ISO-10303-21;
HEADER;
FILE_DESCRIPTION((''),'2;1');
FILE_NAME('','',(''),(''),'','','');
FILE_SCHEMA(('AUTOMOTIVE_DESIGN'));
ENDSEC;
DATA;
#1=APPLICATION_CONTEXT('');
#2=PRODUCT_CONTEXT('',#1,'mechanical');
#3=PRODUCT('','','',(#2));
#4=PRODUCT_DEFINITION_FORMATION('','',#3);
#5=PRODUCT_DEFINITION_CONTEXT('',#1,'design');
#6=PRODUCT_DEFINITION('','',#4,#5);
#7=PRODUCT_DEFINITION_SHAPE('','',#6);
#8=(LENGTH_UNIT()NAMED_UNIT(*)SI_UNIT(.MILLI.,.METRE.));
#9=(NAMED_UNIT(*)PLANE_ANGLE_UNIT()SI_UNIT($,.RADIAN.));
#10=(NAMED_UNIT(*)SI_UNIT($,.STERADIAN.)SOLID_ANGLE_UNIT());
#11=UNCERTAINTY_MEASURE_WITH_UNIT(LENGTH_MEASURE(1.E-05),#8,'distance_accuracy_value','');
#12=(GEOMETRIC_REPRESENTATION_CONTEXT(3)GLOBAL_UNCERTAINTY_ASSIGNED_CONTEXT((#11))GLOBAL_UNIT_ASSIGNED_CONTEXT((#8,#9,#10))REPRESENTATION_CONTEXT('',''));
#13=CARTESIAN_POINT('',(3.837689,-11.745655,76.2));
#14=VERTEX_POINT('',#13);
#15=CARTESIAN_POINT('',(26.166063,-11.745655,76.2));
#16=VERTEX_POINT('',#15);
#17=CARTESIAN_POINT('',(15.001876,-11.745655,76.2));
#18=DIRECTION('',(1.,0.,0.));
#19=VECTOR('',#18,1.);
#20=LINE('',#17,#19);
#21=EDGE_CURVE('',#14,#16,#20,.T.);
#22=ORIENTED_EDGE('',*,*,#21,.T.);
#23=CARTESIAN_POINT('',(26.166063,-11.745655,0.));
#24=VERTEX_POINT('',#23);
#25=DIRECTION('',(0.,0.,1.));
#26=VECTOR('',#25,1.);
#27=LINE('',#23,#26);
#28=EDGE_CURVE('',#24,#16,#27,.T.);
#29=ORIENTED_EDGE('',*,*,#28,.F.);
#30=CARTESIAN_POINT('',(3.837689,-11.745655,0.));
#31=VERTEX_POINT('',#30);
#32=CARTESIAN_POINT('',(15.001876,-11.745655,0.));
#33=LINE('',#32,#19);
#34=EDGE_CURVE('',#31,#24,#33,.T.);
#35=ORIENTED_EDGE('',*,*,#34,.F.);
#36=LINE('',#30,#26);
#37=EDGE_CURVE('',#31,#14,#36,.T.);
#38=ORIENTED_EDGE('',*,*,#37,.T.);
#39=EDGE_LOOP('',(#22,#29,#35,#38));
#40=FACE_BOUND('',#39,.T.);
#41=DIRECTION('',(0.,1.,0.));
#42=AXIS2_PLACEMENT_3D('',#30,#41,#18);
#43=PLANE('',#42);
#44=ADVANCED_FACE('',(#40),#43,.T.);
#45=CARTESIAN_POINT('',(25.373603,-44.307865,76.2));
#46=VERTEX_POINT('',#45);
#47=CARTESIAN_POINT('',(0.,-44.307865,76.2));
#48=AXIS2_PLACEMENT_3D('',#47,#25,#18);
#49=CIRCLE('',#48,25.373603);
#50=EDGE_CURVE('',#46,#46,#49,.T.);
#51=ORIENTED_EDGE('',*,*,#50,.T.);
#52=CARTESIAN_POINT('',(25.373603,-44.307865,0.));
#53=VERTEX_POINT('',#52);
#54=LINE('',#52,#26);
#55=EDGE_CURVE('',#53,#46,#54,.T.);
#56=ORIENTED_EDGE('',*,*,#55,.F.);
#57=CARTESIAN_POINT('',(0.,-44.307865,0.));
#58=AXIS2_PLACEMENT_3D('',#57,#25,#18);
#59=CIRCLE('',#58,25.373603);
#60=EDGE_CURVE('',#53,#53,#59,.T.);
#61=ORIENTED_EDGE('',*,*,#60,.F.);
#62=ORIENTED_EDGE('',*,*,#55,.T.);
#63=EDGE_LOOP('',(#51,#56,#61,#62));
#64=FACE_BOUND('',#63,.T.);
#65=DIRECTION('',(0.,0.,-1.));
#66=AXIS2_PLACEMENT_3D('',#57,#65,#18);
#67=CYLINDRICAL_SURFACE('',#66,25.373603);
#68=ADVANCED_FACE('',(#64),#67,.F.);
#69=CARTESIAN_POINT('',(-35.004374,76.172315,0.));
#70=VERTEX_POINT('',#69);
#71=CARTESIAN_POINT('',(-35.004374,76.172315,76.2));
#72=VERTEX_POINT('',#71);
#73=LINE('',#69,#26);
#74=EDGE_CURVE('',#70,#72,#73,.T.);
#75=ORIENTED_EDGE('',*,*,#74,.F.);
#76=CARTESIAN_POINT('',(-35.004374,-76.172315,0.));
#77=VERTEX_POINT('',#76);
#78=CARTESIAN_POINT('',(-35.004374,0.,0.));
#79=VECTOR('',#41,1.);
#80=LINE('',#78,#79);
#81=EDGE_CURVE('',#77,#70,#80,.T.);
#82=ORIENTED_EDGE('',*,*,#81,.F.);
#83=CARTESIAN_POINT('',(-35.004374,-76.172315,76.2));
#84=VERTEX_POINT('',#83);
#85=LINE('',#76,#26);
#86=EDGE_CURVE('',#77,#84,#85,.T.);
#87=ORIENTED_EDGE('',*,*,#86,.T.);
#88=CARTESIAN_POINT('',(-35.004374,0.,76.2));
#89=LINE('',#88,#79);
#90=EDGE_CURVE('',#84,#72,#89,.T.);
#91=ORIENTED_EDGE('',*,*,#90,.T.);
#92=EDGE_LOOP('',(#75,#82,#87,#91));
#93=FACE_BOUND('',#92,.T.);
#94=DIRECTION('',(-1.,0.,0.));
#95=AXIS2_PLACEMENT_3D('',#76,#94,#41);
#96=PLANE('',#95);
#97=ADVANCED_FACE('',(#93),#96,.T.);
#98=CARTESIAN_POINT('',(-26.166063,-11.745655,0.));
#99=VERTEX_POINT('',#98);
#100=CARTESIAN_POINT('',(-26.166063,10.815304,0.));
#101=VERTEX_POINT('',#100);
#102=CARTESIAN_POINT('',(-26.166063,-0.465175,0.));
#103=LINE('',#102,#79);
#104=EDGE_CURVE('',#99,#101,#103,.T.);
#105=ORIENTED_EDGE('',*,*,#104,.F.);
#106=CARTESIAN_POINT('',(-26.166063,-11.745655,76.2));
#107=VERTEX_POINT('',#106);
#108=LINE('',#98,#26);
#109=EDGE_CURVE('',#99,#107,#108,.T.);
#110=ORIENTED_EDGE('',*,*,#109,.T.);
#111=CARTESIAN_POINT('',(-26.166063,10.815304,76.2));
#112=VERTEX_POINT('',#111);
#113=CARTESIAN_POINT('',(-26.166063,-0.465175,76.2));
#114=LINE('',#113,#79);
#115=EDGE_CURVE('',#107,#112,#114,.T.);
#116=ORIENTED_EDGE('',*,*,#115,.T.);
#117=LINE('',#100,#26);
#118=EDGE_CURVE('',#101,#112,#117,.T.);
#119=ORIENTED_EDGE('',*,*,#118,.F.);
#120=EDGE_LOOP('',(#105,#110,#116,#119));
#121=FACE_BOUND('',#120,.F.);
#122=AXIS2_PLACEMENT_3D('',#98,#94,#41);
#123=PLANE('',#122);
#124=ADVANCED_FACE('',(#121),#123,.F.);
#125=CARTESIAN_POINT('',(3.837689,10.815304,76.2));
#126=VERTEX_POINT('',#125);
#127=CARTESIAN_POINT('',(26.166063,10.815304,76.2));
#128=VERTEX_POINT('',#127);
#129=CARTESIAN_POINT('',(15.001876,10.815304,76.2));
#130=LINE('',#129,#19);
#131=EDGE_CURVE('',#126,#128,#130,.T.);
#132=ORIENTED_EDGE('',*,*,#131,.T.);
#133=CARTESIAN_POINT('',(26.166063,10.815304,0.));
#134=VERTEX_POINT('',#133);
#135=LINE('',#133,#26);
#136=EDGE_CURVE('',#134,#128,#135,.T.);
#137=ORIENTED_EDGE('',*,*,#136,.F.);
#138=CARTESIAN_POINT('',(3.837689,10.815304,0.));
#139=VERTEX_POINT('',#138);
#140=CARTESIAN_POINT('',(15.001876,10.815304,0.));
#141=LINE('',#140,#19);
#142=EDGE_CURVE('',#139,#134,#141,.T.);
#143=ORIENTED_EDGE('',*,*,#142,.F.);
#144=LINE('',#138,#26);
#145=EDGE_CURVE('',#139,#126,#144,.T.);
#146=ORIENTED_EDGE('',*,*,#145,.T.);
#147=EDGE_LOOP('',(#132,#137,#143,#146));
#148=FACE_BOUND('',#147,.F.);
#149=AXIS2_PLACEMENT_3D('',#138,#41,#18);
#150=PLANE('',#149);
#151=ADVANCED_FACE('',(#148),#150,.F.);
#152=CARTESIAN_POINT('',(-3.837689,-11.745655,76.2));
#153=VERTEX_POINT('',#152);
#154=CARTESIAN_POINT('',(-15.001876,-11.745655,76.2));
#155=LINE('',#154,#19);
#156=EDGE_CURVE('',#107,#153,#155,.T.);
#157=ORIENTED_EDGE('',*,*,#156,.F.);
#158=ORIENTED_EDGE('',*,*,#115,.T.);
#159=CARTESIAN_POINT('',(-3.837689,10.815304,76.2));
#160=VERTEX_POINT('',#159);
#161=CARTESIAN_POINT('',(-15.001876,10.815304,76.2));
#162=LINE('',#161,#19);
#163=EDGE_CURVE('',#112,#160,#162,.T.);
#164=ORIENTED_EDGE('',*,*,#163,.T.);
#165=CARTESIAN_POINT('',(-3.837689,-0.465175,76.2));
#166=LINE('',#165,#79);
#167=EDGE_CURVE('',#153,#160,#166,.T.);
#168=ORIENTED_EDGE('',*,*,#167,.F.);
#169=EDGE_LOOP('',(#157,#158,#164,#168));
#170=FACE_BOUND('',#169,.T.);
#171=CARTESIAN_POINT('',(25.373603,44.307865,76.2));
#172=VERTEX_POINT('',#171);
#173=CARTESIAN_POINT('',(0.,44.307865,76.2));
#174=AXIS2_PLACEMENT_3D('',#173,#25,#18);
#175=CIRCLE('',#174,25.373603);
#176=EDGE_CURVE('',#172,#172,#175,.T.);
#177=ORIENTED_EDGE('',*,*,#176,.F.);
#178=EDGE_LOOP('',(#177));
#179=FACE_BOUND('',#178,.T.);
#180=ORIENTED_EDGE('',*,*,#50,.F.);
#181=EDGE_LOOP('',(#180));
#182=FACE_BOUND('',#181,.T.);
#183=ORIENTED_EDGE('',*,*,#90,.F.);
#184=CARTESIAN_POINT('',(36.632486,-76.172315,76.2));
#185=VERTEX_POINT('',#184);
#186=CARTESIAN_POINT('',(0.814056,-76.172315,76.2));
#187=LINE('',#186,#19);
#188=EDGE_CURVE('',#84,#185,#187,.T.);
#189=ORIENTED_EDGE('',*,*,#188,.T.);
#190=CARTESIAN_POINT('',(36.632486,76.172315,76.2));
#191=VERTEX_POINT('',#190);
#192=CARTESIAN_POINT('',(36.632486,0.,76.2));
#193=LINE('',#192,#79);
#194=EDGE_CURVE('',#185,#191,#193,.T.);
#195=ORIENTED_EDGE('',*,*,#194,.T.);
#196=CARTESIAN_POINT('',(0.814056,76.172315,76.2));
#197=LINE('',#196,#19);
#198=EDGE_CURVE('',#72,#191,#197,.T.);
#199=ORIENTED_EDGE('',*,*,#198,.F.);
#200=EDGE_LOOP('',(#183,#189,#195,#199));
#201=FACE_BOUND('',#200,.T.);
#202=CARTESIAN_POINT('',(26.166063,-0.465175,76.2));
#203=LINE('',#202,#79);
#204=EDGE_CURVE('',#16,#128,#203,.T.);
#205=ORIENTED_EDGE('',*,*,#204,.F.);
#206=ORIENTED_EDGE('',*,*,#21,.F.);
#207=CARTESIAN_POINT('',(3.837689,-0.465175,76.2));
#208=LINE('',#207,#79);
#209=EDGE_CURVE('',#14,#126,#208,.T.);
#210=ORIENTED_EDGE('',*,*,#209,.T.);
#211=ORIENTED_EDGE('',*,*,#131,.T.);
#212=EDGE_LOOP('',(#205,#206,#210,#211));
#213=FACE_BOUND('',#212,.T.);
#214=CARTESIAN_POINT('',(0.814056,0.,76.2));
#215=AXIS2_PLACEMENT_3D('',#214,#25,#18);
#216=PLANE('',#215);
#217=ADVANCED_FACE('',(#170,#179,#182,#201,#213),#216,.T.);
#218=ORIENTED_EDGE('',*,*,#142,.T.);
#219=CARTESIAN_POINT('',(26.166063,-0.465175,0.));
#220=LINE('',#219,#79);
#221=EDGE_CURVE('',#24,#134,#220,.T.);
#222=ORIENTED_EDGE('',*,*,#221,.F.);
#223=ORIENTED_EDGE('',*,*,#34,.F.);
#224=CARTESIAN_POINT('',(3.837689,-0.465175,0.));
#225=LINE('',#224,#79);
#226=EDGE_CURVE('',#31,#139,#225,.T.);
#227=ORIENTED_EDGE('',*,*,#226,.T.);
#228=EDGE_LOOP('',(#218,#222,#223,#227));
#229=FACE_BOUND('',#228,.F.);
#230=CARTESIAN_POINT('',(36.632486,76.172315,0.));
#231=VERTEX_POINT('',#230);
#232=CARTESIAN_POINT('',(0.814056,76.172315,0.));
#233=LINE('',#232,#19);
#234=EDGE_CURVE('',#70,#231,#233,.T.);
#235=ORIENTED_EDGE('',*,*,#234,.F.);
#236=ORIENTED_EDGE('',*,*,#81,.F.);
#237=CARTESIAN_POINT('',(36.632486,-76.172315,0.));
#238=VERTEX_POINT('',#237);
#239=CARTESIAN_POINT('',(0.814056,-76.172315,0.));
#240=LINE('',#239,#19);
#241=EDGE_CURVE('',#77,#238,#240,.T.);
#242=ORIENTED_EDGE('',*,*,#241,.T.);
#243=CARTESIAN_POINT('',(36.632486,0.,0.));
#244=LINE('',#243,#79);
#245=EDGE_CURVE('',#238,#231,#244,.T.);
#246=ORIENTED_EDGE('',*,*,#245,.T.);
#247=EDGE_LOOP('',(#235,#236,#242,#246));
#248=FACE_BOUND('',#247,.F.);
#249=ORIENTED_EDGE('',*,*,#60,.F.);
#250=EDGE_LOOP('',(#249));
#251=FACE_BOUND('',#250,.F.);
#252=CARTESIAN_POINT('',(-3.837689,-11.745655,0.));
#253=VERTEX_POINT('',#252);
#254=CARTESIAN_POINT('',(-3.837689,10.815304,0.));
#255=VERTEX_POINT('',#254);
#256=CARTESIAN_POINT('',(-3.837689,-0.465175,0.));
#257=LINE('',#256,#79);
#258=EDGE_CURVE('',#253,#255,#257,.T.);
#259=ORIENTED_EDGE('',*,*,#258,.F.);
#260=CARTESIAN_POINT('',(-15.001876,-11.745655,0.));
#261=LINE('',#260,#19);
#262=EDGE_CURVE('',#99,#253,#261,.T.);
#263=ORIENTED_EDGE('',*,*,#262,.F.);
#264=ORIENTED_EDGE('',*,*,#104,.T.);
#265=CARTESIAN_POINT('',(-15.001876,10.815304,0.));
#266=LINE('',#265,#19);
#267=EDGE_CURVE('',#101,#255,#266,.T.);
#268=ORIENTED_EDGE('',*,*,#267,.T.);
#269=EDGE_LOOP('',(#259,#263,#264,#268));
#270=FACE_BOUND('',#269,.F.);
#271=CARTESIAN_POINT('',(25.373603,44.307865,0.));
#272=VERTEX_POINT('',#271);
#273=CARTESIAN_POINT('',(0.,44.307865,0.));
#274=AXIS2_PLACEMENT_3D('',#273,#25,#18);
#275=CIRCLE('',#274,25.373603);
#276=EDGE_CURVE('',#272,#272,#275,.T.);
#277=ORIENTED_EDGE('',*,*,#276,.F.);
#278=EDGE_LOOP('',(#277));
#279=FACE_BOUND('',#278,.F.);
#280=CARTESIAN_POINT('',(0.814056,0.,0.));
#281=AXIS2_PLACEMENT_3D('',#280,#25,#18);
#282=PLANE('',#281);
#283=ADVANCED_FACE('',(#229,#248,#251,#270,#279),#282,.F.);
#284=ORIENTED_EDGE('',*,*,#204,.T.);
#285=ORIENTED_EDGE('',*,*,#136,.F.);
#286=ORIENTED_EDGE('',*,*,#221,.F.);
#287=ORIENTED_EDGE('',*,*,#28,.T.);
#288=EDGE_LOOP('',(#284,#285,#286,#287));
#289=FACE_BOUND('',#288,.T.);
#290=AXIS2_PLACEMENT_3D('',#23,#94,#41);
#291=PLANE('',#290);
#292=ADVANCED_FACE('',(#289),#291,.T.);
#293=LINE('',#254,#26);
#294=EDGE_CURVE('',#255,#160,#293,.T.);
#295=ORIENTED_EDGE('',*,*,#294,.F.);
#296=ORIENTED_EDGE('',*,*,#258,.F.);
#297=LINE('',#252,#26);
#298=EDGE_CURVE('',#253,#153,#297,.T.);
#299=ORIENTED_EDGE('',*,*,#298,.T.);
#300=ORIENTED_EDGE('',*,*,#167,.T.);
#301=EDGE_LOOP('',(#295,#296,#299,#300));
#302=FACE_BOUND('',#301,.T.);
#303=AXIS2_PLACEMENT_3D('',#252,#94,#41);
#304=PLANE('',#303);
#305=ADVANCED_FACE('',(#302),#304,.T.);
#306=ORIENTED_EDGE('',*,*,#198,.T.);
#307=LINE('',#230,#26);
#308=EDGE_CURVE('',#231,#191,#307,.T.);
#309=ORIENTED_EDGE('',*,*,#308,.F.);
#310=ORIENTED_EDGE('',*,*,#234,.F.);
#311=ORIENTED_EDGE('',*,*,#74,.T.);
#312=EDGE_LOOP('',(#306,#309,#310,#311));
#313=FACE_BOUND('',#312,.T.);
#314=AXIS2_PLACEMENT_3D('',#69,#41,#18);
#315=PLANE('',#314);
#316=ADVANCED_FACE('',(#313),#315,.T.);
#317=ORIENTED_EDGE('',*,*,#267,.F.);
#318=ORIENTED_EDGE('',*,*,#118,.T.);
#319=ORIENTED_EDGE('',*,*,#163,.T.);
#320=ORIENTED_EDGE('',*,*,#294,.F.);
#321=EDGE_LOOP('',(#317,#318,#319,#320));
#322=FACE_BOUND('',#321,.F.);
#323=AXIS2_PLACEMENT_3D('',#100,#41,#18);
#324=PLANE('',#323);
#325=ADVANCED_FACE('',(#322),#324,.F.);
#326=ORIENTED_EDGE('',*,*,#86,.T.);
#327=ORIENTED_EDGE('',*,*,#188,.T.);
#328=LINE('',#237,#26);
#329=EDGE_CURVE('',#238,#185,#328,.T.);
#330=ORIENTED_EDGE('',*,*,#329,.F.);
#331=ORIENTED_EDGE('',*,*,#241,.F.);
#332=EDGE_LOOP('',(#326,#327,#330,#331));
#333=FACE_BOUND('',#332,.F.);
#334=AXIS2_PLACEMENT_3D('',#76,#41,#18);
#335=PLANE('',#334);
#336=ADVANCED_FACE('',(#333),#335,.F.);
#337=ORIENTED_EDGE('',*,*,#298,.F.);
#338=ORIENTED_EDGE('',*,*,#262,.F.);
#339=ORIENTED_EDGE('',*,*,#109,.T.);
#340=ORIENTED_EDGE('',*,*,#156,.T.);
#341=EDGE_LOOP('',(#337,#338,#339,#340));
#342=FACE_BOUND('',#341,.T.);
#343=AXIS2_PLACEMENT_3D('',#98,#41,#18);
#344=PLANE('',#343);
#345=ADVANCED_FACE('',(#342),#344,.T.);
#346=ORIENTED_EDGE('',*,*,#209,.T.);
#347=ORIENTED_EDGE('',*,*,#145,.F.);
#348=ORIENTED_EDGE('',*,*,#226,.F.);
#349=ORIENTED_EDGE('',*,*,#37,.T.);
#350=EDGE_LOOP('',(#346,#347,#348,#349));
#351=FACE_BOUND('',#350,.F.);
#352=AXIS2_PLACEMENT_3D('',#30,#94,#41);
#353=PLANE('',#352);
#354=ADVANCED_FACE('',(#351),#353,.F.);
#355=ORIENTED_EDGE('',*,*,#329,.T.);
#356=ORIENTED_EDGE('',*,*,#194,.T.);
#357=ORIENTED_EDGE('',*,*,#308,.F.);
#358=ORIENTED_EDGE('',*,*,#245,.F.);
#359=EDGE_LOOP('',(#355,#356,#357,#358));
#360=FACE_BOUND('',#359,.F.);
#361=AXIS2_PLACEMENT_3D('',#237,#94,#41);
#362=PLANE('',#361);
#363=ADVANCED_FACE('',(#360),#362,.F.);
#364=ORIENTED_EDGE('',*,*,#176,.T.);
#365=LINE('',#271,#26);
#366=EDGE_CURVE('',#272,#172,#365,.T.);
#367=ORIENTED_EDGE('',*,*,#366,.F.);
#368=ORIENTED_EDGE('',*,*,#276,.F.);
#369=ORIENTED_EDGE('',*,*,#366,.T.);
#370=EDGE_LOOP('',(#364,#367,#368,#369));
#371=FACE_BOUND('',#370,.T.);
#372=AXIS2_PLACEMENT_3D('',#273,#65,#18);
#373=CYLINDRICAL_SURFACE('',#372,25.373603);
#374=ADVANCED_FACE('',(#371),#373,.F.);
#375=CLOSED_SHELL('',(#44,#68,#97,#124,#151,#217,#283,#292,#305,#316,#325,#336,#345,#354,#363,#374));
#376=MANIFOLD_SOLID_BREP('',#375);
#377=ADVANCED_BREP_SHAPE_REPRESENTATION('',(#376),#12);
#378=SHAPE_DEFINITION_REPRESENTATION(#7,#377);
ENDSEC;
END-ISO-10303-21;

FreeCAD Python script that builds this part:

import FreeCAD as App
import Part
import Sketcher

doc = App.newDocument("Part")
params = doc.addObject("Spreadsheet::Sheet", "Params")
for row, (alias, value) in enumerate([
    ("pad1_length", "3 in"),
], start=1):
    params.set(f"A{row}", alias)
    params.set(f"B{row}", "=" + value)
    params.setAlias(f"B{row}", alias)

body = doc.addObject("PartDesign::Body", "Body")

sketch1 = body.newObject("Sketcher::SketchObject", "Sketch")
sketch1.AttachmentSupport = (doc.getObject("XY_Plane"), [""])
sketch1.MapMode = "FlatFace"
sketch1.addGeometry([
    Part.LineSegment(App.Vector(-35.004374, 76.172315, 0), App.Vector(-35.004374, -76.172315, 0)),
    Part.LineSegment(App.Vector(-35.004374, -76.172315, 0), App.Vector(36.632486, -76.172315, 0)),
    Part.LineSegment(App.Vector(36.632486, -76.172315, 0), App.Vector(36.632486, 76.172315, 0)),
    Part.LineSegment(App.Vector(36.632486, 76.172315, 0), App.Vector(-35.004374, 76.172315, 0)),
    Part.LineSegment(App.Vector(-3.837689, -11.745655, 0), App.Vector(-26.166063, -11.745655, 0)),
    Part.LineSegment(App.Vector(-26.166063, -11.745655, 0), App.Vector(-26.166063, 10.815304, 0)),
    Part.LineSegment(App.Vector(-26.166063, 10.815304, 0), App.Vector(-3.837689, 10.815304, 0)),
    Part.LineSegment(App.Vector(-3.837689, 10.815304, 0), App.Vector(-3.837689, -11.745655, 0)),
    Part.Circle(App.Vector(0, -44.307865, 0), App.Vector(0, 0, 1), 25.373603),
    Part.LineSegment(App.Vector(26.166063, -11.745655, 0), App.Vector(3.837689, -11.745655, 0)),
    Part.LineSegment(App.Vector(3.837689, -11.745655, 0), App.Vector(3.837689, 10.815304, 0)),
    Part.LineSegment(App.Vector(3.837689, 10.815304, 0), App.Vector(26.166063, 10.815304, 0)),
    Part.LineSegment(App.Vector(26.166063, 10.815304, 0), App.Vector(26.166063, -11.745655, 0)),
    Part.Circle(App.Vector(0, 44.307865, 0), App.Vector(0, 0, 1), 25.373603),
], False)
sketch1.addConstraint([
    Sketcher.Constraint("Coincident", 0, 2, 1, 1),
    Sketcher.Constraint("Coincident", 1, 2, 2, 1),
    Sketcher.Constraint("Coincident", 2, 2, 3, 1),
    Sketcher.Constraint("Coincident", 3, 2, 0, 1),
    Sketcher.Constraint("Coincident", 4, 2, 5, 1),
    Sketcher.Constraint("Coincident", 5, 2, 6, 1),
    Sketcher.Constraint("Coincident", 6, 2, 7, 1),
    Sketcher.Constraint("Coincident", 7, 2, 4, 1),
    Sketcher.Constraint("Coincident", 9, 2, 10, 1),
    Sketcher.Constraint("Coincident", 10, 2, 11, 1),
    Sketcher.Constraint("Coincident", 11, 2, 12, 1),
    Sketcher.Constraint("Coincident", 12, 2, 9, 1),
    Sketcher.Constraint("Vertical", 0),
    Sketcher.Constraint("Horizontal", 1),
    Sketcher.Constraint("Vertical", 2),
    Sketcher.Constraint("Horizontal", 3),
    Sketcher.Constraint("Horizontal", 4),
    Sketcher.Constraint("Vertical", 5),
    Sketcher.Constraint("Horizontal", 6),
    Sketcher.Constraint("Vertical", 7),
    Sketcher.Constraint("Horizontal", 9),
    Sketcher.Constraint("Vertical", 10),
    Sketcher.Constraint("Horizontal", 11),
    Sketcher.Constraint("Vertical", 12),
    Sketcher.Constraint("Equal", 8, 13),
    Sketcher.Constraint("Symmetric", 8, 3, 13, 3, -1, 1),
    Sketcher.Constraint("Symmetric", 7, 2, 9, 2, -2),
    Sketcher.Constraint("Symmetric", 5, 2, 11, 2, -2),
    Sketcher.Constraint("PointOnObject", 8, 3, -2),
    Sketcher.Constraint("Diameter", 8, 50.747206),
    Sketcher.Constraint("DistanceX", 1, 1, 1, 2, 71.63686),
    Sketcher.Constraint("DistanceY", 0, 2, 0, 1, 152.34463),
    Sketcher.Constraint("DistanceY", 5, 1, 5, 2, 22.560959),
    Sketcher.Constraint("DistanceX", 4, 2, 4, 1, 22.328374),
    Sketcher.Constraint("DistanceX", 6, 2, -1, 1, 3.837689),
    Sketcher.Constraint("DistanceY", 8, 3, 13, 3, 88.61573),
    Sketcher.Constraint("DistanceY", 0, 2, 8, 3, 31.86445),
    Sketcher.Constraint("DistanceY", 8, 3, 4, 2, 32.56221),
    Sketcher.Constraint("DistanceX", 0, 2, 4, 2, 8.838311),
])
pad1 = body.newObject("PartDesign::Pad", "Pad")
pad1.Profile = sketch1
pad1.setExpression("Length", "Params.pad1_length")

doc.recompute()
